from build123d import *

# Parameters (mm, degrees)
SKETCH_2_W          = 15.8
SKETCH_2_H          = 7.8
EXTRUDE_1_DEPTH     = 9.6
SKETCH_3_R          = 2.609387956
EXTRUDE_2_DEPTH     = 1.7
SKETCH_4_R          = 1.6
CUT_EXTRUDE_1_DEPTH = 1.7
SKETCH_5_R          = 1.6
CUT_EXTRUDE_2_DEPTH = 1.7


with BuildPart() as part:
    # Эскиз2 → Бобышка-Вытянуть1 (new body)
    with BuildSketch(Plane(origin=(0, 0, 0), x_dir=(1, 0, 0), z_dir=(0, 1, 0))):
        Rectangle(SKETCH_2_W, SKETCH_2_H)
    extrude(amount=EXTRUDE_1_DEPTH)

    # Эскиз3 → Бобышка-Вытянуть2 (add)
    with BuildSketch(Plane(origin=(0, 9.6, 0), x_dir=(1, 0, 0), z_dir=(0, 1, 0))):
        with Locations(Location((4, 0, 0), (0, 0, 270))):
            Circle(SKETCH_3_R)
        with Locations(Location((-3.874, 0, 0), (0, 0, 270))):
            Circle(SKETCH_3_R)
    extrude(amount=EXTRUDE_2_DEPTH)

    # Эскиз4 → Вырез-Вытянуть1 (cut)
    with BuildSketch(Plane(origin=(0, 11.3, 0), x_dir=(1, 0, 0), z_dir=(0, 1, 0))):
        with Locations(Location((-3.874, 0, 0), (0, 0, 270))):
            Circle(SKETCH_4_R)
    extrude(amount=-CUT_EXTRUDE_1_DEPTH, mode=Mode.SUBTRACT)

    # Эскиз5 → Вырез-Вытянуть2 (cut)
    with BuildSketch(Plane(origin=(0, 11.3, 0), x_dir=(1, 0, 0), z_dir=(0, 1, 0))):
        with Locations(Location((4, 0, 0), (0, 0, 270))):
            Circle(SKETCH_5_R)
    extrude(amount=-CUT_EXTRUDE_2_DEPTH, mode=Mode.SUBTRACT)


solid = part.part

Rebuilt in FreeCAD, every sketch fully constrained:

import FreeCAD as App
import Part
import Sketcher
from FreeCAD import Vector


def add_polygon(sketch, points):
    """Adds a closed chain of lines whose ends are joined by coincident constraints."""
    first, n = sketch.GeometryCount, len(points)
    for a, b in zip(points, points[1:] + points[:1]):
        sketch.addGeometry(Part.LineSegment(App.Vector(*a, 0), App.Vector(*b, 0)), False)
    for i in range(n):
        sketch.addConstraint(Sketcher.Constraint("Coincident", first + i, 2, first + (i + 1) % n, 1))

doc = App.newDocument("Part")
body = doc.addObject("PartDesign::Body", "Body")

sketch1 = body.newObject("Sketcher::SketchObject", "Sketch")
sketch1.AttachmentSupport = (doc.getObject("XZ_Plane"), [""])
sketch1.MapMode = "FlatFace"
add_polygon(sketch1, [(-8, -4), (-8, 4), (8, 4), (8, -4)])
sketch1.addConstraint(Sketcher.Constraint("Vertical", 0))
sketch1.addConstraint(Sketcher.Constraint("Horizontal", 1))
sketch1.addConstraint(Sketcher.Constraint("Vertical", 2))
sketch1.addConstraint(Sketcher.Constraint("Horizontal", 3))
sketch1.addConstraint(Sketcher.Constraint("Symmetric", 0, 2, 2, 2, -1, 1))
sketch1.addConstraint(Sketcher.Constraint("DistanceX", 1, 1, 1, 2, 15.8))
sketch1.addConstraint(Sketcher.Constraint("DistanceY", 0, 1, 0, 2, 7.8))
pad1 = body.newObject("PartDesign::Pad", "Pad")
pad1.Profile = sketch1
pad1.Length = 9.6
pad1.Reversed = True

sketch2 = body.newObject("Sketcher::SketchObject", "Sketch001")
sketch2.AttachmentSupport = (doc.getObject("XZ_Plane"), [""])
sketch2.MapMode = "FlatFace"
sketch2.AttachmentOffset = App.Placement(Vector(0, 0, -9.6), App.Rotation())
sketch2.addGeometry(Part.Circle(Vector(4, 0, 0), Vector(0, 0, 1), 2.6), False)
sketch2.addGeometry(Part.Circle(Vector(-3.9, 0, 0), Vector(0, 0, 1), 2.6), False)
sketch2.addConstraint(Sketcher.Constraint("Equal", 0, 1))
sketch2.addConstraint(Sketcher.Constraint("PointOnObject", 0, 3, -1))
sketch2.addConstraint(Sketcher.Constraint("PointOnObject", 1, 3, -1))
sketch2.addConstraint(Sketcher.Constraint("DistanceX", -1, 1, 0, 3, 4.0))
sketch2.addConstraint(Sketcher.Constraint("Diameter", 0, 5.218776))
sketch2.addConstraint(Sketcher.Constraint("DistanceX", 1, 3, -1, 1, 3.874))
pad2 = body.newObject("PartDesign::Pad", "Pad001")
pad2.Profile = sketch2
pad2.Length = 1.7
pad2.Reversed = True

sketch3 = body.newObject("Sketcher::SketchObject", "Sketch002")
sketch3.AttachmentSupport = (doc.getObject("XZ_Plane"), [""])
sketch3.MapMode = "FlatFace"
sketch3.AttachmentOffset = App.Placement(Vector(0, 0, -11.3), App.Rotation())
sketch3.addGeometry(Part.Circle(Vector(-3.9, 0, 0), Vector(0, 0, 1), 1.6), False)
sketch3.addConstraint(Sketcher.Constraint("PointOnObject", 0, 3, -1))
sketch3.addConstraint(Sketcher.Constraint("Diameter", 0, 3.2))
sketch3.addConstraint(Sketcher.Constraint("DistanceX", 0, 3, -1, 1, 3.874))
pocket1 = body.newObject("PartDesign::Pocket", "Pocket")
pocket1.Profile = sketch3
pocket1.Length = 1.7
pocket1.Reversed = True

sketch4 = body.newObject("Sketcher::SketchObject", "Sketch003")
sketch4.AttachmentSupport = (doc.getObject("XZ_Plane"), [""])
sketch4.MapMode = "FlatFace"
sketch4.AttachmentOffset = App.Placement(Vector(0, 0, -11.3), App.Rotation())
sketch4.addGeometry(Part.Circle(Vector(4, 0, 0), Vector(0, 0, 1), 1.6), False)
sketch4.addConstraint(Sketcher.Constraint("PointOnObject", 0, 3, -1))
sketch4.addConstraint(Sketcher.Constraint("Diameter", 0, 3.2))
sketch4.addConstraint(Sketcher.Constraint("DistanceX", -1, 1, 0, 3, 4.0))
pocket2 = body.newObject("PartDesign::Pocket", "Pocket001")
pocket2.Profile = sketch4
pocket2.Length = 1.7
pocket2.Reversed = True

doc.recompute()
